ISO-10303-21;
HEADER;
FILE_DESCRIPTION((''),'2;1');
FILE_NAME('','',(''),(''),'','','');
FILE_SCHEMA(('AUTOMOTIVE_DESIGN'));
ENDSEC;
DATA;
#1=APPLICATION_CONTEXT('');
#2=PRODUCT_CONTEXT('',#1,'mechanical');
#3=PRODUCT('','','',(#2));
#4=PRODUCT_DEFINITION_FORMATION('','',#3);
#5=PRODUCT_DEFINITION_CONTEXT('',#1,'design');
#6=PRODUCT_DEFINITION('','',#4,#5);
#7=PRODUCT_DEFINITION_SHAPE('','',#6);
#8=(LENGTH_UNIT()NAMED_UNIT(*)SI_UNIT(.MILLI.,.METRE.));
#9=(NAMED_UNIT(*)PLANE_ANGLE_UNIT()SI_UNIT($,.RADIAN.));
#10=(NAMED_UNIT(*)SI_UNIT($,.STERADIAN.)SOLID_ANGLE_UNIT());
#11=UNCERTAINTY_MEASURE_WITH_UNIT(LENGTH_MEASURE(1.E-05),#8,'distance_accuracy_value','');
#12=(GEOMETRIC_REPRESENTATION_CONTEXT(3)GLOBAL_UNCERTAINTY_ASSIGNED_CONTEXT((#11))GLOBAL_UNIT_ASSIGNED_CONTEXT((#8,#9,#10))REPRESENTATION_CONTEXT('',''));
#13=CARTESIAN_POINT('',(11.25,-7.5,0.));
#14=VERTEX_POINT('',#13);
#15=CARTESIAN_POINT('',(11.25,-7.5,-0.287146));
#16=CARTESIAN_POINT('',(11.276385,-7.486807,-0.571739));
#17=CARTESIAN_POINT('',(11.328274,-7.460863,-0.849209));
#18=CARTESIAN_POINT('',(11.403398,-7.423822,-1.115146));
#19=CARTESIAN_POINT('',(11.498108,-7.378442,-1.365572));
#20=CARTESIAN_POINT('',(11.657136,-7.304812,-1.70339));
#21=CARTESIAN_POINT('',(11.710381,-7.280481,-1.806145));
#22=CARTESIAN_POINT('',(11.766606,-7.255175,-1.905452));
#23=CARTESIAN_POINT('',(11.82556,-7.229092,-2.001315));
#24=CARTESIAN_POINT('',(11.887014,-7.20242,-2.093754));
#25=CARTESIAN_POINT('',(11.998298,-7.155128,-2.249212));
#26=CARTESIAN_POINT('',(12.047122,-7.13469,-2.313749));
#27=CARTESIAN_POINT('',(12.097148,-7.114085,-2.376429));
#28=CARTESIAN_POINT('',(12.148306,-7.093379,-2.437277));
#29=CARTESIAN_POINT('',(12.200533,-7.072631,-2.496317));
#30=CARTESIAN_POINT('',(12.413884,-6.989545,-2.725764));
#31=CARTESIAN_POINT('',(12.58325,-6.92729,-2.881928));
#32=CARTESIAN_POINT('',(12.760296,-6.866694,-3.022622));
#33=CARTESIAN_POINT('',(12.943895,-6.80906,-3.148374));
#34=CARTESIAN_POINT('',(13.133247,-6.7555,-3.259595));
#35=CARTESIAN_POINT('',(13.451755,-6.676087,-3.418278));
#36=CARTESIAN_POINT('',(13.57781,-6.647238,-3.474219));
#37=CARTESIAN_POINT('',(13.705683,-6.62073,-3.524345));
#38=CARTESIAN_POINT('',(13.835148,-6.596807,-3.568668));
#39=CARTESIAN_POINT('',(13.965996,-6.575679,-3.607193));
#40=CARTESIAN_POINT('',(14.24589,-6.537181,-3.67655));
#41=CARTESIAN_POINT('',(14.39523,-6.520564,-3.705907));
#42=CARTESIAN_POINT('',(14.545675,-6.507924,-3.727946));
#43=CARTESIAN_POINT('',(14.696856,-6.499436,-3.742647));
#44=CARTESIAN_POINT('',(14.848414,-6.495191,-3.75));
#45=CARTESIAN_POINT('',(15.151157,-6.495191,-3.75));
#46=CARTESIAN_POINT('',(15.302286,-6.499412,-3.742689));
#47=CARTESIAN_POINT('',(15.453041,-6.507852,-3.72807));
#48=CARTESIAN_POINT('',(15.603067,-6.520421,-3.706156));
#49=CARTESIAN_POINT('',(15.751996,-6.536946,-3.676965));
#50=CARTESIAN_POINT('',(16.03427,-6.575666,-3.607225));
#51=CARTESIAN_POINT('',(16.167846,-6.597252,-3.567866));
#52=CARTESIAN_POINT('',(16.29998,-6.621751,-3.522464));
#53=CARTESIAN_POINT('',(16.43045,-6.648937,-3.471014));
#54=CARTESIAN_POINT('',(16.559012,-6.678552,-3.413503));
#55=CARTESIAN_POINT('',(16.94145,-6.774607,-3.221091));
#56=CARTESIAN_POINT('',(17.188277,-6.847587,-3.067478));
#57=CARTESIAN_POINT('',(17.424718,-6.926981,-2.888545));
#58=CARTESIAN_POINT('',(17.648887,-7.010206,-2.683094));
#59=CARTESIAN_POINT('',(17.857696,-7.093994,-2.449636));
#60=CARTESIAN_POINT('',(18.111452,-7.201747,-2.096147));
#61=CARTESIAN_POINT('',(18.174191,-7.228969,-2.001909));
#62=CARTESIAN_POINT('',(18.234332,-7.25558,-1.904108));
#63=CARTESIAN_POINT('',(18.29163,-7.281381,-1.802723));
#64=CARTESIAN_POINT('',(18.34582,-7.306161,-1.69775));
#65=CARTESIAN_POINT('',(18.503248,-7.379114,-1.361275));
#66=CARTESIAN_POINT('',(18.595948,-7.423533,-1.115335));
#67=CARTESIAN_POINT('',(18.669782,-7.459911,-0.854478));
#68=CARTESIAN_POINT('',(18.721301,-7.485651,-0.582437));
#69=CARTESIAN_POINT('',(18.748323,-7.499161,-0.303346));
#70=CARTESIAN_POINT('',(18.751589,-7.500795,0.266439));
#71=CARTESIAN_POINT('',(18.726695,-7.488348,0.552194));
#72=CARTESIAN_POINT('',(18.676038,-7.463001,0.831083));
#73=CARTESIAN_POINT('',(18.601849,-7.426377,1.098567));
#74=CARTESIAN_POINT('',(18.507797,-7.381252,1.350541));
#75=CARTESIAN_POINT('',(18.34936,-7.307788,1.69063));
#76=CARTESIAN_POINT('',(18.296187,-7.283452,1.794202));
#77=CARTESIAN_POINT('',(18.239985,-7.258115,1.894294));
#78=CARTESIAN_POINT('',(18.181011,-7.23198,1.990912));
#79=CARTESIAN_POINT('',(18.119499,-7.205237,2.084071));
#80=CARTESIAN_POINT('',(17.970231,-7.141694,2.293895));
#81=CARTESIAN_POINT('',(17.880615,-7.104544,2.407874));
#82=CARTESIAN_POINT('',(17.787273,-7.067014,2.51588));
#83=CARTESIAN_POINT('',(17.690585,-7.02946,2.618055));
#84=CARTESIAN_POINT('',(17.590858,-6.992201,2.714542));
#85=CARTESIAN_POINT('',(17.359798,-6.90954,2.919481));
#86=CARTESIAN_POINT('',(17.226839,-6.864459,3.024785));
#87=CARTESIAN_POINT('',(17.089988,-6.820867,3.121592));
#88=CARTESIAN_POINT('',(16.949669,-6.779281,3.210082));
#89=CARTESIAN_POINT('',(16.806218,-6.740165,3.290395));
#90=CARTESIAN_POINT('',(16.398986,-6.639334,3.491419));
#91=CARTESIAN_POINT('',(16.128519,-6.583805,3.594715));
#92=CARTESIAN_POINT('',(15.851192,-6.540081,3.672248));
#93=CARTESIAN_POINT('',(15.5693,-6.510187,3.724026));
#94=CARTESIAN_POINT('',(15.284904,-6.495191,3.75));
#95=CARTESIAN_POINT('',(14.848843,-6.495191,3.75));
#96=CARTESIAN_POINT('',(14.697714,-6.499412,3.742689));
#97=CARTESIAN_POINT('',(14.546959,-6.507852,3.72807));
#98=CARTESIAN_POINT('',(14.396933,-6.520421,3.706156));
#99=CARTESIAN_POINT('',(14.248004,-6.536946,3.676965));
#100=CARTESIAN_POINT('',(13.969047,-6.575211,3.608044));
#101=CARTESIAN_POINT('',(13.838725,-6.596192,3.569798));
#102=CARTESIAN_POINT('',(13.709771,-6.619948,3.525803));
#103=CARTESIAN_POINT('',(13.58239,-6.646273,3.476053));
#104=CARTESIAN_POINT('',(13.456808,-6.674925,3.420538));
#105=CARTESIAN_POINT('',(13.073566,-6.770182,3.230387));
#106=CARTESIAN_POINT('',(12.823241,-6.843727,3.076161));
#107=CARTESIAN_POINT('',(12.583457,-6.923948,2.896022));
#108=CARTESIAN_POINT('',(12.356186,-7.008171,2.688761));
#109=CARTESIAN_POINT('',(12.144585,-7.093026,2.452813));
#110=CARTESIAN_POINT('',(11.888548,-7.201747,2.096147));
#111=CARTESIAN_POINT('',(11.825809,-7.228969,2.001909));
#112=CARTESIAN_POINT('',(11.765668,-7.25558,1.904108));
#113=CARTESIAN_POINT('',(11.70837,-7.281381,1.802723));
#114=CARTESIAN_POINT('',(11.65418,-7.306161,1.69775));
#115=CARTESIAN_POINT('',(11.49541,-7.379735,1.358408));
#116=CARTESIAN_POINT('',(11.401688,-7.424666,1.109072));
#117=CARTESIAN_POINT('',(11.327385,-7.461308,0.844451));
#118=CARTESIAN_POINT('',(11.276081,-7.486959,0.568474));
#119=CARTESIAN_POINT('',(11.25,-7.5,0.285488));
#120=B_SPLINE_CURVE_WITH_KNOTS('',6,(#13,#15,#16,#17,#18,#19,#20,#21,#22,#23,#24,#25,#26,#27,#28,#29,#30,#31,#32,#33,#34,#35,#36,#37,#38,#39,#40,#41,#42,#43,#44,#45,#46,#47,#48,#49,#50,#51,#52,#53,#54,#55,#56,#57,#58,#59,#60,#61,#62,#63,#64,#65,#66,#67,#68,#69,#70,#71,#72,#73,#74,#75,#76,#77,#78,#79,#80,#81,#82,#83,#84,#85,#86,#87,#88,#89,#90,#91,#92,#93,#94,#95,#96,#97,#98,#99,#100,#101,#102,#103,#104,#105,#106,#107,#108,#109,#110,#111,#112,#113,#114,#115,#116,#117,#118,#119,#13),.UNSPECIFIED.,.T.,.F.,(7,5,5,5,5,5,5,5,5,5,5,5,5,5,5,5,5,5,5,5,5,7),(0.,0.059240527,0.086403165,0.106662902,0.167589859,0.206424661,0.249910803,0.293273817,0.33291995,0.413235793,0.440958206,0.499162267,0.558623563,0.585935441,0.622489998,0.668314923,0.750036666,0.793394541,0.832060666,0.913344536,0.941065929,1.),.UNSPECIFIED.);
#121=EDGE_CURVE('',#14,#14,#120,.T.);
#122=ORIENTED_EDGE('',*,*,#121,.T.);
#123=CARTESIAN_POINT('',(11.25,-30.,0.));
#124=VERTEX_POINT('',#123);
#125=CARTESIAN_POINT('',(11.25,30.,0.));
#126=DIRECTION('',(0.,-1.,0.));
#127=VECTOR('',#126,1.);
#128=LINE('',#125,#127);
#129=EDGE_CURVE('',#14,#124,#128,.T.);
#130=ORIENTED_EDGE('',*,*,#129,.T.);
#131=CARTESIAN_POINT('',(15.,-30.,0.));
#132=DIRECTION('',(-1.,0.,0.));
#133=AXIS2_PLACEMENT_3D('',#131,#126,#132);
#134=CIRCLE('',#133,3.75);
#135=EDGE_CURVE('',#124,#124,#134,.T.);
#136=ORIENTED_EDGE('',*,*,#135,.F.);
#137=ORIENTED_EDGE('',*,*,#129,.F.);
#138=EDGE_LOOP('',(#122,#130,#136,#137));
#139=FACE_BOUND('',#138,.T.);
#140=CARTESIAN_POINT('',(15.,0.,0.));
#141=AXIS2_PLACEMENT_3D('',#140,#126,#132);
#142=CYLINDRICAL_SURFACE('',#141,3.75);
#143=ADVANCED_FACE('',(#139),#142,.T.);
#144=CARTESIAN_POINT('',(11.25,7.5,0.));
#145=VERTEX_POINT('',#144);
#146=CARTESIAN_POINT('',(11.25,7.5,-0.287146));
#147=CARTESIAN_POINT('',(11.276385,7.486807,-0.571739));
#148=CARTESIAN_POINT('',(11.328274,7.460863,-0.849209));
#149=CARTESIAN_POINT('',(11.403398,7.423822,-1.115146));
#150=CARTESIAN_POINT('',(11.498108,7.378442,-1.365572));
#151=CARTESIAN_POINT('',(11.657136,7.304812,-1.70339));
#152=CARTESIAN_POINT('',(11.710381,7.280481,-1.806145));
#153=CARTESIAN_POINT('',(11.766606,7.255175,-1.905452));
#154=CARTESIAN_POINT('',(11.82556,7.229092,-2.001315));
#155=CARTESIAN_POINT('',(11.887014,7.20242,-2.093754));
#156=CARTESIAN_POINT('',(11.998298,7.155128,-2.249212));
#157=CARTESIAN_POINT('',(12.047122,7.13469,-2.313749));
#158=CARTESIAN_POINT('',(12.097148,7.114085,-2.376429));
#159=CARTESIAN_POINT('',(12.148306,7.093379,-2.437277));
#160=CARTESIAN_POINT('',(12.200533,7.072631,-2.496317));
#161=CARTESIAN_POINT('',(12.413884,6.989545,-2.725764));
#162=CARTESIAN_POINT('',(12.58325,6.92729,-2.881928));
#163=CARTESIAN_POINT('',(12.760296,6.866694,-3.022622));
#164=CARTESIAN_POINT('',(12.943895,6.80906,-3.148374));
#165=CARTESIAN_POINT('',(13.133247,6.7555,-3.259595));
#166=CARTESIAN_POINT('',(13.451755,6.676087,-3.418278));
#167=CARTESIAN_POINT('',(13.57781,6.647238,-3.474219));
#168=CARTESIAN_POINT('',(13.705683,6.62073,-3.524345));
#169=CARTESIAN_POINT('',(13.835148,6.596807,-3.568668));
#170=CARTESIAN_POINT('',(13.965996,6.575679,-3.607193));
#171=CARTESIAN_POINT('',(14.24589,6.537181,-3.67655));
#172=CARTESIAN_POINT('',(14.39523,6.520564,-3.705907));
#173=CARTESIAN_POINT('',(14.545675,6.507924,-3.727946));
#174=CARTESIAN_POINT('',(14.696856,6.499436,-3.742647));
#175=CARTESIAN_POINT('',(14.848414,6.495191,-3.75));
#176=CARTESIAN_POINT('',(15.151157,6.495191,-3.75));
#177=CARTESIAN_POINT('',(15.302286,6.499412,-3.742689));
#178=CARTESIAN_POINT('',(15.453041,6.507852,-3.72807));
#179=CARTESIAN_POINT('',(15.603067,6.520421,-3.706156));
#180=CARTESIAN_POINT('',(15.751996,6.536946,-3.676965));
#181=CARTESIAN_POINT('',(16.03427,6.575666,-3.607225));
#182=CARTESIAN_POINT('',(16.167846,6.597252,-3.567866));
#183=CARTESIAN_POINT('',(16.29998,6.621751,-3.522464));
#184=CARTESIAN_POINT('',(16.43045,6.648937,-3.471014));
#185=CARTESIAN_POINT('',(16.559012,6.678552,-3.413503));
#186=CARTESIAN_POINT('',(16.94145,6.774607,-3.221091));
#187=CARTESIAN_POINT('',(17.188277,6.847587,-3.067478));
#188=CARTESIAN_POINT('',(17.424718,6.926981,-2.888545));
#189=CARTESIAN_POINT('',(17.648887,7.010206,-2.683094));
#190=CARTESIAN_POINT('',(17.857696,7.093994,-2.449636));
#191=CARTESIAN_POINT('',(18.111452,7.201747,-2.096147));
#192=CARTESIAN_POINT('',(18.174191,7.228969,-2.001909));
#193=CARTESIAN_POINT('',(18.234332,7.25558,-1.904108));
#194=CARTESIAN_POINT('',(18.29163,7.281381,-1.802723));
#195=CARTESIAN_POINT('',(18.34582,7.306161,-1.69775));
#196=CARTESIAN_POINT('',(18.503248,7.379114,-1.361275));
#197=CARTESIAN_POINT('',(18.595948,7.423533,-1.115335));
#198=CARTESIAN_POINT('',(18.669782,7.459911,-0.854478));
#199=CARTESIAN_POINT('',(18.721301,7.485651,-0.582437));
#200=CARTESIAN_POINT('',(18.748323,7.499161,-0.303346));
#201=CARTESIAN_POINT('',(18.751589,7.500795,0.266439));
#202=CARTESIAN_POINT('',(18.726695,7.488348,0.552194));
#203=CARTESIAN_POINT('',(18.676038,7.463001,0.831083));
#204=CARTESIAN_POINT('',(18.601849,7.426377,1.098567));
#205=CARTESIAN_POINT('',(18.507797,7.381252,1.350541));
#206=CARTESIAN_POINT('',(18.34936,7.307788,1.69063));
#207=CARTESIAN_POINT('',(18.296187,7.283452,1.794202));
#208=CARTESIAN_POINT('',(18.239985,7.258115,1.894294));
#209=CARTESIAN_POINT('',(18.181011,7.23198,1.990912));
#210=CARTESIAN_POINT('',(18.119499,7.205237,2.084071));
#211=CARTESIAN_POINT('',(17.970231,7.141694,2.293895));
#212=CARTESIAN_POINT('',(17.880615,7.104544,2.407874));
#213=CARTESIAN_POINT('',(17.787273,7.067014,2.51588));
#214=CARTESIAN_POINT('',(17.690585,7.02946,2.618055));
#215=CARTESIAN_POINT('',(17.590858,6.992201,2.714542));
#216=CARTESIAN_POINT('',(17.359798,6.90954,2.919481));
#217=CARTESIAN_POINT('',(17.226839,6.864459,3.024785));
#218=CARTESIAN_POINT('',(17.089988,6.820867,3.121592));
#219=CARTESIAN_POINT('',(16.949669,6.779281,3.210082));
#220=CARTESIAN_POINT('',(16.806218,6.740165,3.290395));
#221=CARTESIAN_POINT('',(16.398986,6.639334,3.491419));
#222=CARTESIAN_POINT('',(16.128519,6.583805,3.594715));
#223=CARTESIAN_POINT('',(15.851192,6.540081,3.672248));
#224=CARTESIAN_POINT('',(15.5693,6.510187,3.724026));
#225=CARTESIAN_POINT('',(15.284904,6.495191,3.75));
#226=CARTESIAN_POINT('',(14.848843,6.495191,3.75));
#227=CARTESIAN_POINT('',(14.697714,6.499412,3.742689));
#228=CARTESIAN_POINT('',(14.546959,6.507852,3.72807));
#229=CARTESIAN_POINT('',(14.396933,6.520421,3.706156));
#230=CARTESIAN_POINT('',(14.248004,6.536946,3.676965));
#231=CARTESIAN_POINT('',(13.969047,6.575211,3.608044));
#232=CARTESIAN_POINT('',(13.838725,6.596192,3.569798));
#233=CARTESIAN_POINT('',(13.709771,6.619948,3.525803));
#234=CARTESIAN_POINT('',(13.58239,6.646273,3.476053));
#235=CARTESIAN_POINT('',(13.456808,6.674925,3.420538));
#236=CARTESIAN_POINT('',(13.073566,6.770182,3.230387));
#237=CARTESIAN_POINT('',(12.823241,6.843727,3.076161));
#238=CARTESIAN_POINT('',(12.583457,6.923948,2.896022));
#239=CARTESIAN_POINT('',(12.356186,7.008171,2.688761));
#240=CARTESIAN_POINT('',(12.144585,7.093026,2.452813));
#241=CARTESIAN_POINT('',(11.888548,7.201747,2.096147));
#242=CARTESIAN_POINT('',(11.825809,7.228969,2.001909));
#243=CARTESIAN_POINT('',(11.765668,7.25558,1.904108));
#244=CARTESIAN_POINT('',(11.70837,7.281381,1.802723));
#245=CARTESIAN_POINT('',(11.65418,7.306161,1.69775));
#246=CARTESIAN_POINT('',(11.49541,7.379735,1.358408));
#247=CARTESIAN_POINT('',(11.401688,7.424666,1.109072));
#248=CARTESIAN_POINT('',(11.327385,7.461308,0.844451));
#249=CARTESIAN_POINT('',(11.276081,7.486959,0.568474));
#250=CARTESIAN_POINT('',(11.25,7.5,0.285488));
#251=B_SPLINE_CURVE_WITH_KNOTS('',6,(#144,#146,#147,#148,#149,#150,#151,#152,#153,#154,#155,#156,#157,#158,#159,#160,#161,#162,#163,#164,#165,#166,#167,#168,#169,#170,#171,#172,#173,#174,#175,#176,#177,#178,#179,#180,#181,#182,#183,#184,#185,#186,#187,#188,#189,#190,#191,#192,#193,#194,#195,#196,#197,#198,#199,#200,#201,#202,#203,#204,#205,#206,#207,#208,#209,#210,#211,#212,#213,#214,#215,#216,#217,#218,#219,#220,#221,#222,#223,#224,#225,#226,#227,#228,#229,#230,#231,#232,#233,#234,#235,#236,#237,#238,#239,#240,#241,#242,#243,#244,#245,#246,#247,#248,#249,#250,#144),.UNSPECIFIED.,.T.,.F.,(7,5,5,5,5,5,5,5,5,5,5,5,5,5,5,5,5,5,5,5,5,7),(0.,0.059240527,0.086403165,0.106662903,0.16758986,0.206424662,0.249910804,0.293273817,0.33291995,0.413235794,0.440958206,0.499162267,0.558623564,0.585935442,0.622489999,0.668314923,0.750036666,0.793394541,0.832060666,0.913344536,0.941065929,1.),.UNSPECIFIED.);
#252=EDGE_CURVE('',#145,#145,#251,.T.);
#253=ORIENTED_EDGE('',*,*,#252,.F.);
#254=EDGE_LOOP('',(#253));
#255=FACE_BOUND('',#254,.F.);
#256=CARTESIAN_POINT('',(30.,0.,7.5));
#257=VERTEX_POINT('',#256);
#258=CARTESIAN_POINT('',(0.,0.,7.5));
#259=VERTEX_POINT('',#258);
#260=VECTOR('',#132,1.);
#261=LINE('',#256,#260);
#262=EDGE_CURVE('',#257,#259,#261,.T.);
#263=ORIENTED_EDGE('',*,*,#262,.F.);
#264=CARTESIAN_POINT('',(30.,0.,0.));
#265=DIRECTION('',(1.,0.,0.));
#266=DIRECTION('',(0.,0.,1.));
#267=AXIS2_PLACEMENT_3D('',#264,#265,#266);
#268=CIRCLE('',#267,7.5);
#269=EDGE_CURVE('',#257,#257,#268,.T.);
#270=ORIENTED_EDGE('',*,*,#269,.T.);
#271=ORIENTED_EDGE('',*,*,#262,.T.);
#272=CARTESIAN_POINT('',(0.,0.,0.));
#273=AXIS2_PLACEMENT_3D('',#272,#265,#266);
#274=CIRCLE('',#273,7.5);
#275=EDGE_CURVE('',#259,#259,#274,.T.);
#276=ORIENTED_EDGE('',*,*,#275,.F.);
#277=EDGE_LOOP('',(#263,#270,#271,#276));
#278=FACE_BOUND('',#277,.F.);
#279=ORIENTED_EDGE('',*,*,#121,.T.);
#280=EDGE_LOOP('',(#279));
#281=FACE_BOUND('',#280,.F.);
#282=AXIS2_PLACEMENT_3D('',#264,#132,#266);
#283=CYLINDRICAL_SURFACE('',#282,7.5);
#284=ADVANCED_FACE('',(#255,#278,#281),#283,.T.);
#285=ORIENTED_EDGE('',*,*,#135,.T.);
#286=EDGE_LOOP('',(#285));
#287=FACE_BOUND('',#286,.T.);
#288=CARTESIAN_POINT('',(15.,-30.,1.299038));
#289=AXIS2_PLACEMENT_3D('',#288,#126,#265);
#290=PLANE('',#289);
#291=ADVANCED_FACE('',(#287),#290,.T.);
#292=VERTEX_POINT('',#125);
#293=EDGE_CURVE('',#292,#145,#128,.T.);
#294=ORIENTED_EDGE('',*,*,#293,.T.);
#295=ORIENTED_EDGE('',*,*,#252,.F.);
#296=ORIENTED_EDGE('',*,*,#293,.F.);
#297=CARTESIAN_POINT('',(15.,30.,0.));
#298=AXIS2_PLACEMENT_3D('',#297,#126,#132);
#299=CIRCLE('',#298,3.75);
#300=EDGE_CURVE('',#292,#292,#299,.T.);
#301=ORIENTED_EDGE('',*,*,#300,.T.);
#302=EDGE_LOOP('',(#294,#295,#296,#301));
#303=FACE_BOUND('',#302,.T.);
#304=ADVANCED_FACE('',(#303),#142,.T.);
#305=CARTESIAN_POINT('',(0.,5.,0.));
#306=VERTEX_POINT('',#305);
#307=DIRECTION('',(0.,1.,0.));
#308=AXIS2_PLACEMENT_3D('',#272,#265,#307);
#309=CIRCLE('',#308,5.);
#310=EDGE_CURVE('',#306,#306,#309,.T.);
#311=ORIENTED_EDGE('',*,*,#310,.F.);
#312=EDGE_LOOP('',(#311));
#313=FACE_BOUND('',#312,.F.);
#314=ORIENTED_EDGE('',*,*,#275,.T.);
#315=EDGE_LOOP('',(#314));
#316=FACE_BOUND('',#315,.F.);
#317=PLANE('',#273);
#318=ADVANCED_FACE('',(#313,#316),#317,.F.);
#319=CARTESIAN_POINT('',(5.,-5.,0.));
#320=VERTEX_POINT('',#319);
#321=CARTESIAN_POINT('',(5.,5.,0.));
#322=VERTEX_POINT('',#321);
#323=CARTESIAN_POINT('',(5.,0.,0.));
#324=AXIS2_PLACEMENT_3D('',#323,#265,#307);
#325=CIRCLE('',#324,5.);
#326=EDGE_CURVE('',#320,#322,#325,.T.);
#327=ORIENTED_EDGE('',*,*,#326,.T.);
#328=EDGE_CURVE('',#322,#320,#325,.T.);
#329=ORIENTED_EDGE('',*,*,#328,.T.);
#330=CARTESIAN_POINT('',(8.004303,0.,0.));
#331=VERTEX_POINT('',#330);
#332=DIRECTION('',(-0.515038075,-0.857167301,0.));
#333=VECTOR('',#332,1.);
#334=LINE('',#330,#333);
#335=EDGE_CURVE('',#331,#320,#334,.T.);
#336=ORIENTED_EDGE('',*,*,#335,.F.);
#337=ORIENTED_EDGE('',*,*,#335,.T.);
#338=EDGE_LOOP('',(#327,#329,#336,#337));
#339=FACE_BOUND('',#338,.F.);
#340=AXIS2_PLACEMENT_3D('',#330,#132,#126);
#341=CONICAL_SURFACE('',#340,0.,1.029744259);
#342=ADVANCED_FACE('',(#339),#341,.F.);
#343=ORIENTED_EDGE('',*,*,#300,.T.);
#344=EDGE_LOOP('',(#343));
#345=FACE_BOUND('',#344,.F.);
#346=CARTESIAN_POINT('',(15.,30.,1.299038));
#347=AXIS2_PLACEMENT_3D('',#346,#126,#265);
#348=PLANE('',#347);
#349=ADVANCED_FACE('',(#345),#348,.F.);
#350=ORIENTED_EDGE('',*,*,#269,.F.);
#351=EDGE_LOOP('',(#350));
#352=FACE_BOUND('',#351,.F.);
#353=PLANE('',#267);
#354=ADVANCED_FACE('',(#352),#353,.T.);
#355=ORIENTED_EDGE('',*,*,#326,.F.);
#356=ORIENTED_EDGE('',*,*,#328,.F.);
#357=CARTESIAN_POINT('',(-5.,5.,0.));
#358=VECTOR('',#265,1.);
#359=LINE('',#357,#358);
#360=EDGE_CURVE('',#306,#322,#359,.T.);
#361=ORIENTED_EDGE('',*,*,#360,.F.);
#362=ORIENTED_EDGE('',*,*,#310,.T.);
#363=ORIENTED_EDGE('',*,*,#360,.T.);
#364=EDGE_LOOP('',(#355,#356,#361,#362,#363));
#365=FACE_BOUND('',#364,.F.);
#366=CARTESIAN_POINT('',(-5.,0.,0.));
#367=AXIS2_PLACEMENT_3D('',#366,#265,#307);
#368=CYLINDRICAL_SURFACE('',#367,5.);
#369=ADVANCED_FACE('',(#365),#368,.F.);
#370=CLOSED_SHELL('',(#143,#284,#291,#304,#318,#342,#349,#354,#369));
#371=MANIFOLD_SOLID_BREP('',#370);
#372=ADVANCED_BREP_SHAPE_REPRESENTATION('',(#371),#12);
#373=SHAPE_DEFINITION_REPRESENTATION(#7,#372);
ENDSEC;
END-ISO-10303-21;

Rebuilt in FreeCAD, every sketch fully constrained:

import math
import FreeCAD as App
import Part
import Sketcher

V = App.Vector

doc = App.newDocument("Part")
body = doc.addObject("PartDesign::Body", "Body")

# Sketch on XZ plane
sketch1 = body.newObject("Sketcher::SketchObject", "Sketch")
sketch1.AttachmentSupport = (doc.getObject("XZ_Plane"), [""])
sketch1.MapMode = "FlatFace"
sketch1.addGeometry([
    Part.LineSegment(V(18.8, 0, 0), V(30, 0, 0)),  # 0
    Part.LineSegment(V(30, 0, 0), V(30, 7.5, 0)),  # 1
    Part.LineSegment(V(30, 7.5, 0), V(0, 7.5, 0)),  # 2
    Part.LineSegment(V(0, 7.5, 0), V(0, 0, 0)),  # 3
    Part.LineSegment(V(0, 0, 0), V(11.2, 0, 0)),  # 4
    Part.ArcOfCircle(Part.Circle(V(15, 0, 0), V(0, 0, 1), 3.8), math.radians(180), math.radians(360)),  # 5
], False)
sketch1.addConstraint([
    Sketcher.Constraint("Coincident", 0, 2, 1, 1),
    Sketcher.Constraint("Coincident", 1, 2, 2, 1),
    Sketcher.Constraint("Coincident", 2, 2, 3, 1),
    Sketcher.Constraint("Coincident", 3, 2, 4, 1),
    Sketcher.Constraint("Coincident", 4, 2, 5, 1),
    Sketcher.Constraint("Coincident", 5, 2, 0, 1),
    Sketcher.Constraint("Horizontal", 0),
    Sketcher.Constraint("Vertical", 1),
    Sketcher.Constraint("Horizontal", 2),
    Sketcher.Constraint("Vertical", 3),
    Sketcher.Constraint("Horizontal", 4),
    Sketcher.Constraint("Coincident", 3, 2, -1, 1),
    Sketcher.Constraint("PointOnObject", 5, 3, -1),
    Sketcher.Constraint("PointOnObject", 0, 2, -1),
    Sketcher.Constraint("Equal", 0, 4),
    Sketcher.Constraint("DistanceX", 2, 2, 2, 1, 30.0),
    Sketcher.Constraint("Radius", 5, 3.75),
    Sketcher.Constraint("DistanceY", 1, 1, 1, 2, 7.5),
])
revolution = body.newObject("PartDesign::Revolution", "Revolution")
revolution.Profile = sketch1
revolution.ReferenceAxis = (sketch1, ["H_Axis"])
revolution.Angle = 360

# Sketch on YZ plane
sketch2 = body.newObject("Sketcher::SketchObject", "Sketch001")
sketch2.AttachmentSupport = (doc.getObject("YZ_Plane"), [""])
sketch2.MapMode = "FlatFace"
sketch2.addGeometry(Part.Circle(V(0, 0, 0), V(0, 0, 1), 5), False)
sketch2.addConstraint([
    Sketcher.Constraint("Coincident", 0, 3, -1, 1),
    Sketcher.Constraint("Diameter", 0, 10.0),
])
doc.recompute()
hole = body.newObject("PartDesign::Hole", "Hole")
hole.Profile = sketch2
hole.ThreadType = "None"
hole.Diameter = 10
hole.DepthType = "Dimension"
hole.Depth = 5
hole.DrillPoint = "Angled"
hole.DrillPointAngle = 118
hole.Reversed = True

# Sketch on XZ plane
sketch3 = body.newObject("Sketcher::SketchObject", "Sketch002")
sketch3.AttachmentSupport = (doc.getObject("XZ_Plane"), [""])
sketch3.MapMode = "FlatFace"
sketch3.addGeometry(Part.Circle(V(15, 0, 0), V(0, 0, 1), 3.8), False)
sketch3.addConstraint([
    Sketcher.Constraint("PointOnObject", 0, 3, -1),
    Sketcher.Constraint("Diameter", 0, 7.5),
    Sketcher.Constraint("DistanceX", -1, 1, 0, 3, 15.0),
])
pad1 = body.newObject("PartDesign::Pad", "Pad")
pad1.Profile = sketch3
pad1.Length = 60
pad1.Midplane = True

doc.recompute()
